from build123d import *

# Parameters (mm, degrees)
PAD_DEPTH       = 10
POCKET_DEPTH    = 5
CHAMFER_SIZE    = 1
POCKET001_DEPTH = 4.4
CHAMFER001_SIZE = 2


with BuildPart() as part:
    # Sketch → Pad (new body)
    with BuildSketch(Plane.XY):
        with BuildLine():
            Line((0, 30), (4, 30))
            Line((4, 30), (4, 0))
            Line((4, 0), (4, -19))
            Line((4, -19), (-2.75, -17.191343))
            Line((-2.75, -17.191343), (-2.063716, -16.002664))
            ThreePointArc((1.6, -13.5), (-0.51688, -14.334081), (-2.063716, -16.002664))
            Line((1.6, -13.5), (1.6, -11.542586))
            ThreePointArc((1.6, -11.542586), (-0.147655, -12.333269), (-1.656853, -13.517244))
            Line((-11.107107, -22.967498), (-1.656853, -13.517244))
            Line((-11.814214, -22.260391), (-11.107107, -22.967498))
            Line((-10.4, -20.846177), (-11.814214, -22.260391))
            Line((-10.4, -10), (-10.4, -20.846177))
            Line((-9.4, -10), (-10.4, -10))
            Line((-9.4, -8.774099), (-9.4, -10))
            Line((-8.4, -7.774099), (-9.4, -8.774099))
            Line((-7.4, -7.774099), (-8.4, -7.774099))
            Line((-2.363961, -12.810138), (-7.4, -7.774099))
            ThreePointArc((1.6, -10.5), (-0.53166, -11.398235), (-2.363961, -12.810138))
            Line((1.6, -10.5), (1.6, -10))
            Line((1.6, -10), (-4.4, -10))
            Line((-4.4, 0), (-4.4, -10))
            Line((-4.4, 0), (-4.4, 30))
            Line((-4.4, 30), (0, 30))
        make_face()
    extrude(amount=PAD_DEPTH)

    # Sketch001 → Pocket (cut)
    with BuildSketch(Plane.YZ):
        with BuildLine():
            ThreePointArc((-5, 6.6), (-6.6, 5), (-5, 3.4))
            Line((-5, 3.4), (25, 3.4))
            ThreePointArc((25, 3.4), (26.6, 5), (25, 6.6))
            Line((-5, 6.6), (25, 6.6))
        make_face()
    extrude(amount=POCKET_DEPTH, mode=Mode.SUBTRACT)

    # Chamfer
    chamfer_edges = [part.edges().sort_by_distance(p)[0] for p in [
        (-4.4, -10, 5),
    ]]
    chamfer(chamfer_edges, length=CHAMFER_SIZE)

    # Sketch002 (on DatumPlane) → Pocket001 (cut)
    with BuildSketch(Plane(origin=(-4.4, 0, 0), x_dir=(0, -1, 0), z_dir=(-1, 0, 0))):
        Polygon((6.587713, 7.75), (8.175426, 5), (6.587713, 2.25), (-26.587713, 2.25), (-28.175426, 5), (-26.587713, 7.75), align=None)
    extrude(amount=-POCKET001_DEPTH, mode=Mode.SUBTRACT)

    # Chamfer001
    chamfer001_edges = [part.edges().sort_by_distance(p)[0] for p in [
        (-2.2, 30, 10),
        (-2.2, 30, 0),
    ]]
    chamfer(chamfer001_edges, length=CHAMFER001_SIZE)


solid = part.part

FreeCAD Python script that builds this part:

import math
import FreeCAD as App
import Part
import Sketcher
Q = App.Units.Quantity


def edges_at(feature, points):
    """Names of the edges that pass closest to the given points."""
    edges = feature.Shape.Edges
    near = lambda p: min(range(len(edges)), key=lambda i: edges[i].distToShape(Part.Vertex(*p))[0])
    return sorted({f"Edge{near(p) + 1}" for p in points})

doc = App.newDocument("Part")
body = doc.addObject("PartDesign::Body", "Body")

# Sketch on XY plane
sketch1 = body.newObject("Sketcher::SketchObject", "Sketch")
sketch1.AttachmentSupport = (doc.getObject("XY_Plane"), [""])
sketch1.MapMode = "FlatFace"
sketch1.addGeometry([
    Part.LineSegment(App.Vector(4, -19, 0), App.Vector(4, 30, 0)),  # 0
    Part.LineSegment(App.Vector(4, 30, 0), App.Vector(-4.4, 30, 0)),  # 1
    Part.LineSegment(App.Vector(-4.4, 30, 0), App.Vector(-4.4, -10, 0)),  # 2
    Part.LineSegment(App.Vector(-4.4, -10, 0), App.Vector(1.6, -10, 0)),  # 3
    Part.LineSegment(App.Vector(1.6, -10, 0), App.Vector(1.6, -10.5, 0)),  # 4
    Part.ArcOfCircle(Part.Circle(App.Vector(4, -19.2, 0), App.Vector(0, 0, 1), 9), math.radians(105), math.radians(135)),  # 5
    Part.LineSegment(App.Vector(-2.4, -12.8, 0), App.Vector(-7.4, -7.8, 0)),  # 6
    Part.LineSegment(App.Vector(-7.4, -7.8, 0), App.Vector(-8.4, -7.8, 0)),  # 7
    Part.LineSegment(App.Vector(-8.4, -7.8, 0), App.Vector(-9.4, -8.8, 0)),  # 8
    Part.LineSegment(App.Vector(-9.4, -8.8, 0), App.Vector(-9.4, -10, 0)),  # 9
    Part.LineSegment(App.Vector(-9.4, -10, 0), App.Vector(-10.4, -10, 0)),  # 10
    Part.LineSegment(App.Vector(-10.4, -10, 0), App.Vector(-10.4, -20.8, 0)),  # 11
    Part.LineSegment(App.Vector(-10.4, -20.8, 0), App.Vector(-11.8, -22.3, 0)),  # 12
    Part.LineSegment(App.Vector(-11.8, -22.3, 0), App.Vector(-11.1, -23, 0)),  # 13
    Part.LineSegment(App.Vector(-11.1, -23, 0), App.Vector(-1.7, -13.5, 0)),  # 14
    Part.ArcOfCircle(Part.Circle(App.Vector(4, -19.2, 0), App.Vector(0, 0, 1), 8), math.radians(107), math.radians(135)),  # 15
    Part.LineSegment(App.Vector(1.6, -11.5, 0), App.Vector(1.6, -13.5, 0)),  # 16
    Part.ArcOfCircle(Part.Circle(App.Vector(2.4, -18.6, 0), App.Vector(0, 0, 1), 5.1), math.radians(99), math.radians(150)),  # 17
    Part.LineSegment(App.Vector(-2.1, -16, 0), App.Vector(-2.8, -17.2, 0)),  # 18
    Part.LineSegment(App.Vector(-2.8, -17.2, 0), App.Vector(4, -19, 0)),  # 19
], False)
sketch1.addConstraint([
    Sketcher.Constraint("Coincident", 0, 2, 1, 1),
    Sketcher.Constraint("Coincident", 1, 2, 2, 1),
    Sketcher.Constraint("Coincident", 2, 2, 3, 1),
    Sketcher.Constraint("Coincident", 3, 2, 4, 1),
    Sketcher.Constraint("Coincident", 4, 2, 5, 1),
    Sketcher.Constraint("Coincident", 5, 2, 6, 1),
    Sketcher.Constraint("Coincident", 6, 2, 7, 1),
    Sketcher.Constraint("Coincident", 7, 2, 8, 1),
    Sketcher.Constraint("Coincident", 8, 2, 9, 1),
    Sketcher.Constraint("Coincident", 9, 2, 10, 1),
    Sketcher.Constraint("Coincident", 10, 2, 11, 1),
    Sketcher.Constraint("Coincident", 11, 2, 12, 1),
    Sketcher.Constraint("Coincident", 12, 2, 13, 1),
    Sketcher.Constraint("Coincident", 13, 2, 14, 1),
    Sketcher.Constraint("Tangent", 14, 2, 15, 2),
    Sketcher.Constraint("Coincident", 15, 1, 16, 1),
    Sketcher.Constraint("Coincident", 16, 2, 17, 1),
    Sketcher.Constraint("Tangent", 17, 2, 18, 1),
    Sketcher.Constraint("Coincident", 18, 2, 19, 1),
    Sketcher.Constraint("Coincident", 19, 2, 0, 1),
    Sketcher.Constraint("Vertical", 0),
    Sketcher.Constraint("Horizontal", 1),
    Sketcher.Constraint("Vertical", 2),
    Sketcher.Constraint("Horizontal", 3),
    Sketcher.Constraint("Vertical", 4),
    Sketcher.Constraint("Horizontal", 7),
    Sketcher.Constraint("Vertical", 9),
    Sketcher.Constraint("Horizontal", 10),
    Sketcher.Constraint("Vertical", 11),
    Sketcher.Constraint("Vertical", 16),
    Sketcher.Constraint("Coincident", 15, 3, 5, 3),
    Sketcher.Constraint("Perpendicular", 6, 8),
    Sketcher.Constraint("Parallel", 8, 12),
    Sketcher.Constraint("Perpendicular", 12, 13),
    Sketcher.Constraint("Perpendicular", 13, 14),
    Sketcher.Constraint("Horizontal", 3, 2, 9, 2),
    Sketcher.Constraint("Vertical", 4, 2, 15, 1),
    Sketcher.Constraint("Equal", 7, 10),
    Sketcher.Constraint("DistanceX", 3, 1, 3, 2, 6.0),
    Sketcher.Constraint("DistanceX", 7, 2, 7, 1, 1.0),
    Sketcher.Constraint("DistanceY", 0, 1, 0, 2, 49.0),
    Sketcher.Constraint("DistanceY", 2, 2, 2, 1, 40.0),
    Sketcher.Constraint("Angle", 6, Q("135 deg")),
    Sketcher.Constraint("Angle", 18, Q("-119.999995 deg")),
    Sketcher.Constraint("Angle", 19, Q("-15 deg")),
    Sketcher.Constraint("Distance", 12, 2.000001),
    Sketcher.Constraint("Distance", 13, 1.0),
    Sketcher.Constraint("DistanceX", 1, 2, 1, 1, 8.4),
    Sketcher.Constraint("DistanceY", 4, 2, 4, 1, 0.5),
    Sketcher.Constraint("DistanceX", -1, 1, 0, 2, 4.0),
    Sketcher.Constraint("DistanceY", -1, 1, 0, 2, 30.0),
    Sketcher.Constraint("DistanceX", 6, 2, 2, 2, 3.0),
    Sketcher.Constraint("DistanceX", 8, 2, 7, 2, 1.0),
    Sketcher.Constraint("DistanceY", 16, 2, 4, 2, 3.0),
    Sketcher.Constraint("DistanceX", 18, 2, -1, 1, 2.75),
    Sketcher.Constraint("Radius", 5, 8.999988),
    Sketcher.Constraint("Radius", 15, 7.99999),
    Sketcher.Constraint("DistanceY", 9, 2, 9, 1, 1.225901),
    Sketcher.Constraint("Radius", 17, 5.122493),
    Sketcher.Constraint("DistanceX", 17, 3, 5, 3, 1.6275),
])
pad1 = body.newObject("PartDesign::Pad", "Pad")
pad1.Profile = sketch1
pad1.Length = 10

# Sketch on YZ plane
sketch2 = body.newObject("Sketcher::SketchObject", "Sketch001")
sketch2.AttachmentSupport = (doc.getObject("YZ_Plane"), [""])
sketch2.MapMode = "FlatFace"
sketch2.addGeometry([
    Part.ArcOfCircle(Part.Circle(App.Vector(-5, 5, 0), App.Vector(0, 0, 1), 1.6), math.radians(90), math.radians(270)),
    Part.LineSegment(App.Vector(-5, 3.4, 0), App.Vector(25, 3.4, 0)),
    Part.ArcOfCircle(Part.Circle(App.Vector(25, 5, 0), App.Vector(0, 0, 1), 1.6), math.radians(-90), math.radians(90)),
    Part.LineSegment(App.Vector(25, 6.6, 0), App.Vector(-5, 6.6, 0)),
], False)
sketch2.addConstraint([
    Sketcher.Constraint("Tangent", 0, 2, 1, 1),
    Sketcher.Constraint("Tangent", 1, 2, 2, 1),
    Sketcher.Constraint("Tangent", 2, 2, 3, 1),
    Sketcher.Constraint("Tangent", 3, 2, 0, 1),
    Sketcher.Constraint("Horizontal", 1),
    Sketcher.Constraint("Horizontal", 3),
    Sketcher.Constraint("Radius", 0, 1.6),
    Sketcher.Constraint("DistanceX", 1, 1, 1, 2, 30.0),
    Sketcher.Constraint("DistanceX", 0, 3, -1, 1, 5.0),
    Sketcher.Constraint("DistanceY", -1, 1, 0, 3, 5.0),
])
pocket1 = body.newObject("PartDesign::Pocket", "Pocket")
pocket1.Profile = sketch2
pocket1.Length = 5
pocket1.Reversed = True
doc.recompute()

chamfer = body.newObject("PartDesign::Chamfer", "Chamfer")
chamfer.Base = (pocket1, edges_at(pocket1, [(-4.4, -10, 5)]))
chamfer.Size = 1

# Sketch on YZ plane
sketch3 = body.newObject("Sketcher::SketchObject", "Sketch002")
sketch3.AttachmentSupport = (doc.getObject("YZ_Plane"), [""])
sketch3.MapMode = "FlatFace"
sketch3.AttachmentOffset = App.Placement(App.Vector(0, 0, -4.4), App.Rotation())
sketch3.addGeometry([
    Part.LineSegment(App.Vector(-8.2, 5, 0), App.Vector(-6.6, 7.8, 0)),  # 0
    Part.LineSegment(App.Vector(-6.6, 7.8, 0), App.Vector(26.6, 7.8, 0)),  # 1
    Part.LineSegment(App.Vector(26.6, 7.8, 0), App.Vector(28.2, 5, 0)),  # 2
    Part.LineSegment(App.Vector(28.2, 5, 0), App.Vector(26.6, 2.2, 0)),  # 3
    Part.LineSegment(App.Vector(26.6, 2.2, 0), App.Vector(-6.6, 2.2, 0)),  # 4
    Part.LineSegment(App.Vector(-6.6, 2.2, 0), App.Vector(-8.2, 5, 0)),  # 5
], False)
sketch3.addConstraint([
    Sketcher.Constraint("Coincident", 0, 2, 1, 1),
    Sketcher.Constraint("Coincident", 1, 2, 2, 1),
    Sketcher.Constraint("Coincident", 2, 2, 3, 1),
    Sketcher.Constraint("Coincident", 3, 2, 4, 1),
    Sketcher.Constraint("Coincident", 4, 2, 5, 1),
    Sketcher.Constraint("Coincident", 5, 2, 0, 1),
    Sketcher.Constraint("Horizontal", 1),
    Sketcher.Constraint("Horizontal", 4),
    Sketcher.Constraint("Parallel", 0, 3),
    Sketcher.Constraint("Parallel", 2, 5),
    Sketcher.Constraint("Horizontal", 2, 2, 5, 2),
    Sketcher.Constraint("Vertical", 1, 2, 3, 2),
    Sketcher.Constraint("Vertical", 0, 2, 4, 2),
    Sketcher.Constraint("Angle", 0, Q("60.000004 deg")),
    Sketcher.Constraint("DistanceY", -1, 1, 2, 2, 5.0),
    Sketcher.Constraint("DistanceY", 3, 2, 1, 2, 5.5),
    Sketcher.Constraint("DistanceX", 1, 1, 1, 2, 33.175426),
    Sketcher.Constraint("DistanceX", 0, 2, -1, 1, 6.587713),
])
pocket2 = body.newObject("PartDesign::Pocket", "Pocket001")
pocket2.Profile = sketch3
pocket2.Length = 4.4
pocket2.Reversed = True
doc.recompute()

chamfer2 = body.newObject("PartDesign::Chamfer", "Chamfer001")
chamfer2.Base = (pocket2, edges_at(pocket2, [(-0.2, 30, 10), (-0.2, 30, 0)]))
chamfer2.Size = 2

doc.recompute()
